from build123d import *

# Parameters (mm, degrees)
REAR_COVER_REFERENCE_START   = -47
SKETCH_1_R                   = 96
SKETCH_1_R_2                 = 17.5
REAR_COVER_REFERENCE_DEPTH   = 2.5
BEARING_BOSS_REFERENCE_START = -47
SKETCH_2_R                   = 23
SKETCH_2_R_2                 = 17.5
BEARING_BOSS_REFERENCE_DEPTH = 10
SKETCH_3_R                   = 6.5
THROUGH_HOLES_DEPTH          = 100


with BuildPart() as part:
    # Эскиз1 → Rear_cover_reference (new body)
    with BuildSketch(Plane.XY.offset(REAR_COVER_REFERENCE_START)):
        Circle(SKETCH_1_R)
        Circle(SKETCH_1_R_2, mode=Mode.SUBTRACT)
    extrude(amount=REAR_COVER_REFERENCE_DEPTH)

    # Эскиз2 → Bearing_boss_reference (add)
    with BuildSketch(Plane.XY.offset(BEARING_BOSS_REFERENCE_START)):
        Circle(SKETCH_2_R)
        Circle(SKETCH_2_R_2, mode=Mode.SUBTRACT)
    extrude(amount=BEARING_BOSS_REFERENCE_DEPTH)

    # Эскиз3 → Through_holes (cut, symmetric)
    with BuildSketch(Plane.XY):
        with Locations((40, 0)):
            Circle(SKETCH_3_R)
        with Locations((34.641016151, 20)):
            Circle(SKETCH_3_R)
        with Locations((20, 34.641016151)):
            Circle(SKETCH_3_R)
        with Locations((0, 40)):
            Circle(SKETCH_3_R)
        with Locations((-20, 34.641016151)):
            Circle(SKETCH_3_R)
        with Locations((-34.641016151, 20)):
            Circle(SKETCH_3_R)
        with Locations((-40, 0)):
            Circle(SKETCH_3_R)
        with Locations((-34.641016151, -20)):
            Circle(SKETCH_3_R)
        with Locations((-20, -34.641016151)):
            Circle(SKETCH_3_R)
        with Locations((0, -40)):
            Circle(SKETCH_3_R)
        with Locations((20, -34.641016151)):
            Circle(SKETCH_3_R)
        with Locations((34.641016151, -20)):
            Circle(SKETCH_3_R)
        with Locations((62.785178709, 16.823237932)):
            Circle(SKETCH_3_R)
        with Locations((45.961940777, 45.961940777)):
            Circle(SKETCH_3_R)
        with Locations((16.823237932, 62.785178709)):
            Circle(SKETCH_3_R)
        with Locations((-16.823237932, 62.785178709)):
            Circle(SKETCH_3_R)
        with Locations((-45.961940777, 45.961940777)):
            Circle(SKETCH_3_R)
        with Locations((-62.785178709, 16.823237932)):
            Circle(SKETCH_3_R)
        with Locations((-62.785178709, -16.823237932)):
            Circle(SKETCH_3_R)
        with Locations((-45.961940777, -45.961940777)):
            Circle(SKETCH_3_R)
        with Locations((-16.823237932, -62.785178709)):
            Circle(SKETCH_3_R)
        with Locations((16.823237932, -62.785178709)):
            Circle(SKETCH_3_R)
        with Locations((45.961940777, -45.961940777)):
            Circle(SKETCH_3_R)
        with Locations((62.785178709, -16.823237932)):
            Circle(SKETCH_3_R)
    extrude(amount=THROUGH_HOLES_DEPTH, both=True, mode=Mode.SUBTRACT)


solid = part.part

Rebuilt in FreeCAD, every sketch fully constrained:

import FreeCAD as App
import Part
import Sketcher

doc = App.newDocument("Part")
body = doc.addObject("PartDesign::Body", "Body")

sketch1 = doc.addObject("Sketcher::SketchObject", "Sketch")
body.addObject(sketch1)
sketch1.AttachmentSupport = (doc.XY_Plane, [""])
sketch1.MapMode = "FlatFace"
sketch1.AttachmentOffset = App.Placement(App.Vector(0, 0, -47), App.Rotation())
sketch1.addGeometry([
    Part.Circle(App.Vector(0, 0, 0), App.Vector(0, 0, 1), 96),
    Part.Circle(App.Vector(0, 0, 0), App.Vector(0, 0, 1), 18),
], False)
sketch1.addConstraint([
    Sketcher.Constraint("Coincident", 0, 3, -1, 1),
    Sketcher.Constraint("Coincident", 1, 3, -1, 1),
    Sketcher.Constraint("Diameter", 0, 192.0),
    Sketcher.Constraint("Diameter", 1, 35.0),
])
pad1 = doc.addObject("PartDesign::Pad", "Pad")
body.addObject(pad1)
pad1.Profile = sketch1
pad1.Length = 2.5

sketch2 = doc.addObject("Sketcher::SketchObject", "Sketch001")
body.addObject(sketch2)
sketch2.AttachmentSupport = (doc.XY_Plane, [""])
sketch2.MapMode = "FlatFace"
sketch2.AttachmentOffset = App.Placement(App.Vector(0, 0, -47), App.Rotation())
sketch2.addGeometry([
    Part.Circle(App.Vector(0, 0, 0), App.Vector(0, 0, 1), 23),
    Part.Circle(App.Vector(0, 0, 0), App.Vector(0, 0, 1), 18),
], False)
sketch2.addConstraint([
    Sketcher.Constraint("Coincident", 0, 3, -1, 1),
    Sketcher.Constraint("Coincident", 1, 3, -1, 1),
    Sketcher.Constraint("Diameter", 0, 46.0),
    Sketcher.Constraint("Diameter", 1, 35.0),
])
pad2 = doc.addObject("PartDesign::Pad", "Pad001")
body.addObject(pad2)
pad2.Profile = sketch2
pad2.Length = 10

sketch3 = doc.addObject("Sketcher::SketchObject", "Sketch002")
body.addObject(sketch3)
sketch3.AttachmentSupport = (doc.XY_Plane, [""])
sketch3.MapMode = "FlatFace"
sketch3.addGeometry([
    Part.Circle(App.Vector(40, 0, 0), App.Vector(0, 0, 1), 6),
    Part.Circle(App.Vector(35, 20, 0), App.Vector(0, 0, 1), 6),
    Part.Circle(App.Vector(20, 35, 0), App.Vector(0, 0, 1), 6),
    Part.Circle(App.Vector(0, 40, 0), App.Vector(0, 0, 1), 6),
    Part.Circle(App.Vector(-20, 35, 0), App.Vector(0, 0, 1), 6),
    Part.Circle(App.Vector(-35, 20, 0), App.Vector(0, 0, 1), 6),
    Part.Circle(App.Vector(-40, 0, 0), App.Vector(0, 0, 1), 6),
    Part.Circle(App.Vector(-35, -20, 0), App.Vector(0, 0, 1), 6),
    Part.Circle(App.Vector(-20, -35, 0), App.Vector(0, 0, 1), 6),
    Part.Circle(App.Vector(0, -40, 0), App.Vector(0, 0, 1), 6),
    Part.Circle(App.Vector(20, -35, 0), App.Vector(0, 0, 1), 6),
    Part.Circle(App.Vector(35, -20, 0), App.Vector(0, 0, 1), 6),
    Part.Circle(App.Vector(63, 17, 0), App.Vector(0, 0, 1), 6),
    Part.Circle(App.Vector(46, 46, 0), App.Vector(0, 0, 1), 6),
    Part.Circle(App.Vector(17, 63, 0), App.Vector(0, 0, 1), 6),
    Part.Circle(App.Vector(-17, 63, 0), App.Vector(0, 0, 1), 6),
    Part.Circle(App.Vector(-46, 46, 0), App.Vector(0, 0, 1), 6),
    Part.Circle(App.Vector(-63, 17, 0), App.Vector(0, 0, 1), 6),
    Part.Circle(App.Vector(-63, -17, 0), App.Vector(0, 0, 1), 6),
    Part.Circle(App.Vector(-46, -46, 0), App.Vector(0, 0, 1), 6),
    Part.Circle(App.Vector(-17, -63, 0), App.Vector(0, 0, 1), 6),
    Part.Circle(App.Vector(17, -63, 0), App.Vector(0, 0, 1), 6),
    Part.Circle(App.Vector(46, -46, 0), App.Vector(0, 0, 1), 6),
    Part.Circle(App.Vector(63, -17, 0), App.Vector(0, 0, 1), 6),
], False)
sketch3.addConstraint([
    Sketcher.Constraint("Equal", 0, 1),
    Sketcher.Constraint("Equal", 1, 2),
    Sketcher.Constraint("Equal", 2, 3),
    Sketcher.Constraint("Equal", 3, 4),
    Sketcher.Constraint("Equal", 4, 5),
    Sketcher.Constraint("Equal", 5, 6),
    Sketcher.Constraint("Equal", 6, 7),
    Sketcher.Constraint("Equal", 7, 8),
    Sketcher.Constraint("Equal", 8, 9),
    Sketcher.Constraint("Equal", 9, 10),
    Sketcher.Constraint("Equal", 10, 11),
    Sketcher.Constraint("Equal", 11, 12),
    Sketcher.Constraint("Equal", 12, 13),
    Sketcher.Constraint("Equal", 13, 14),
    Sketcher.Constraint("Equal", 14, 15),
    Sketcher.Constraint("Equal", 15, 16),
    Sketcher.Constraint("Equal", 16, 17),
    Sketcher.Constraint("Equal", 17, 18),
    Sketcher.Constraint("Equal", 18, 19),
    Sketcher.Constraint("Equal", 19, 20),
    Sketcher.Constraint("Equal", 20, 21),
    Sketcher.Constraint("Equal", 21, 22),
    Sketcher.Constraint("Equal", 22, 23),
    Sketcher.Constraint("Symmetric", 0, 3, 6, 3, -1, 1),
    Sketcher.Constraint("Symmetric", 1, 3, 7, 3, -1, 1),
    Sketcher.Constraint("Symmetric", 2, 3, 8, 3, -1, 1),
    Sketcher.Constraint("Symmetric", 3, 3, 9, 3, -1, 1),
    Sketcher.Constraint("Symmetric", 4, 3, 10, 3, -1, 1),
    Sketcher.Constraint("Symmetric", 5, 3, 11, 3, -1, 1),
    Sketcher.Constraint("Symmetric", 12, 3, 18, 3, -1, 1),
    Sketcher.Constraint("Symmetric", 13, 3, 19, 3, -1, 1),
    Sketcher.Constraint("Symmetric", 14, 3, 20, 3, -1, 1),
    Sketcher.Constraint("Symmetric", 15, 3, 21, 3, -1, 1),
    Sketcher.Constraint("Symmetric", 16, 3, 22, 3, -1, 1),
    Sketcher.Constraint("Symmetric", 17, 3, 23, 3, -1, 1),
    Sketcher.Constraint("Symmetric", 2, 3, 4, 3, -2),
    Sketcher.Constraint("Symmetric", 1, 3, 5, 3, -2),
    Sketcher.Constraint("Symmetric", 14, 3, 15, 3, -2),
    Sketcher.Constraint("Symmetric", 13, 3, 16, 3, -2),
    Sketcher.Constraint("Symmetric", 12, 3, 17, 3, -2),
    Sketcher.Constraint("PointOnObject", 0, 3, -1),
    Sketcher.Constraint("PointOnObject", 3, 3, -2),
    Sketcher.Constraint("Diameter", 0, 13.0),
    Sketcher.Constraint("DistanceX", -1, 1, 0, 3, 40.0),
    Sketcher.Constraint("DistanceY", -1, 1, 1, 3, 20.0),
    Sketcher.Constraint("DistanceX", -1, 1, 2, 3, 20.0),
    Sketcher.Constraint("DistanceY", -1, 1, 3, 3, 40.0),
    Sketcher.Constraint("DistanceX", -1, 1, 12, 3, 62.785179),
    Sketcher.Constraint("DistanceX", -1, 1, 13, 3, 45.961941),
    Sketcher.Constraint("DistanceY", -1, 1, 13, 3, 45.961941),
    Sketcher.Constraint("DistanceY", -1, 1, 14, 3, 62.785179),
    Sketcher.Constraint("DistanceY", 12, 3, 2, 3, 17.817778),
    Sketcher.Constraint("DistanceX", 14, 3, 1, 3, 17.817778),
    Sketcher.Constraint("DistanceX", -1, 1, 1, 3, 34.641016),
    Sketcher.Constraint("DistanceY", -1, 1, 2, 3, 34.641016),
])
pocket1 = doc.addObject("PartDesign::Pocket", "Pocket")
body.addObject(pocket1)
pocket1.Profile = sketch3
pocket1.Length = 200
pocket1.Midplane = True

doc.recompute()
